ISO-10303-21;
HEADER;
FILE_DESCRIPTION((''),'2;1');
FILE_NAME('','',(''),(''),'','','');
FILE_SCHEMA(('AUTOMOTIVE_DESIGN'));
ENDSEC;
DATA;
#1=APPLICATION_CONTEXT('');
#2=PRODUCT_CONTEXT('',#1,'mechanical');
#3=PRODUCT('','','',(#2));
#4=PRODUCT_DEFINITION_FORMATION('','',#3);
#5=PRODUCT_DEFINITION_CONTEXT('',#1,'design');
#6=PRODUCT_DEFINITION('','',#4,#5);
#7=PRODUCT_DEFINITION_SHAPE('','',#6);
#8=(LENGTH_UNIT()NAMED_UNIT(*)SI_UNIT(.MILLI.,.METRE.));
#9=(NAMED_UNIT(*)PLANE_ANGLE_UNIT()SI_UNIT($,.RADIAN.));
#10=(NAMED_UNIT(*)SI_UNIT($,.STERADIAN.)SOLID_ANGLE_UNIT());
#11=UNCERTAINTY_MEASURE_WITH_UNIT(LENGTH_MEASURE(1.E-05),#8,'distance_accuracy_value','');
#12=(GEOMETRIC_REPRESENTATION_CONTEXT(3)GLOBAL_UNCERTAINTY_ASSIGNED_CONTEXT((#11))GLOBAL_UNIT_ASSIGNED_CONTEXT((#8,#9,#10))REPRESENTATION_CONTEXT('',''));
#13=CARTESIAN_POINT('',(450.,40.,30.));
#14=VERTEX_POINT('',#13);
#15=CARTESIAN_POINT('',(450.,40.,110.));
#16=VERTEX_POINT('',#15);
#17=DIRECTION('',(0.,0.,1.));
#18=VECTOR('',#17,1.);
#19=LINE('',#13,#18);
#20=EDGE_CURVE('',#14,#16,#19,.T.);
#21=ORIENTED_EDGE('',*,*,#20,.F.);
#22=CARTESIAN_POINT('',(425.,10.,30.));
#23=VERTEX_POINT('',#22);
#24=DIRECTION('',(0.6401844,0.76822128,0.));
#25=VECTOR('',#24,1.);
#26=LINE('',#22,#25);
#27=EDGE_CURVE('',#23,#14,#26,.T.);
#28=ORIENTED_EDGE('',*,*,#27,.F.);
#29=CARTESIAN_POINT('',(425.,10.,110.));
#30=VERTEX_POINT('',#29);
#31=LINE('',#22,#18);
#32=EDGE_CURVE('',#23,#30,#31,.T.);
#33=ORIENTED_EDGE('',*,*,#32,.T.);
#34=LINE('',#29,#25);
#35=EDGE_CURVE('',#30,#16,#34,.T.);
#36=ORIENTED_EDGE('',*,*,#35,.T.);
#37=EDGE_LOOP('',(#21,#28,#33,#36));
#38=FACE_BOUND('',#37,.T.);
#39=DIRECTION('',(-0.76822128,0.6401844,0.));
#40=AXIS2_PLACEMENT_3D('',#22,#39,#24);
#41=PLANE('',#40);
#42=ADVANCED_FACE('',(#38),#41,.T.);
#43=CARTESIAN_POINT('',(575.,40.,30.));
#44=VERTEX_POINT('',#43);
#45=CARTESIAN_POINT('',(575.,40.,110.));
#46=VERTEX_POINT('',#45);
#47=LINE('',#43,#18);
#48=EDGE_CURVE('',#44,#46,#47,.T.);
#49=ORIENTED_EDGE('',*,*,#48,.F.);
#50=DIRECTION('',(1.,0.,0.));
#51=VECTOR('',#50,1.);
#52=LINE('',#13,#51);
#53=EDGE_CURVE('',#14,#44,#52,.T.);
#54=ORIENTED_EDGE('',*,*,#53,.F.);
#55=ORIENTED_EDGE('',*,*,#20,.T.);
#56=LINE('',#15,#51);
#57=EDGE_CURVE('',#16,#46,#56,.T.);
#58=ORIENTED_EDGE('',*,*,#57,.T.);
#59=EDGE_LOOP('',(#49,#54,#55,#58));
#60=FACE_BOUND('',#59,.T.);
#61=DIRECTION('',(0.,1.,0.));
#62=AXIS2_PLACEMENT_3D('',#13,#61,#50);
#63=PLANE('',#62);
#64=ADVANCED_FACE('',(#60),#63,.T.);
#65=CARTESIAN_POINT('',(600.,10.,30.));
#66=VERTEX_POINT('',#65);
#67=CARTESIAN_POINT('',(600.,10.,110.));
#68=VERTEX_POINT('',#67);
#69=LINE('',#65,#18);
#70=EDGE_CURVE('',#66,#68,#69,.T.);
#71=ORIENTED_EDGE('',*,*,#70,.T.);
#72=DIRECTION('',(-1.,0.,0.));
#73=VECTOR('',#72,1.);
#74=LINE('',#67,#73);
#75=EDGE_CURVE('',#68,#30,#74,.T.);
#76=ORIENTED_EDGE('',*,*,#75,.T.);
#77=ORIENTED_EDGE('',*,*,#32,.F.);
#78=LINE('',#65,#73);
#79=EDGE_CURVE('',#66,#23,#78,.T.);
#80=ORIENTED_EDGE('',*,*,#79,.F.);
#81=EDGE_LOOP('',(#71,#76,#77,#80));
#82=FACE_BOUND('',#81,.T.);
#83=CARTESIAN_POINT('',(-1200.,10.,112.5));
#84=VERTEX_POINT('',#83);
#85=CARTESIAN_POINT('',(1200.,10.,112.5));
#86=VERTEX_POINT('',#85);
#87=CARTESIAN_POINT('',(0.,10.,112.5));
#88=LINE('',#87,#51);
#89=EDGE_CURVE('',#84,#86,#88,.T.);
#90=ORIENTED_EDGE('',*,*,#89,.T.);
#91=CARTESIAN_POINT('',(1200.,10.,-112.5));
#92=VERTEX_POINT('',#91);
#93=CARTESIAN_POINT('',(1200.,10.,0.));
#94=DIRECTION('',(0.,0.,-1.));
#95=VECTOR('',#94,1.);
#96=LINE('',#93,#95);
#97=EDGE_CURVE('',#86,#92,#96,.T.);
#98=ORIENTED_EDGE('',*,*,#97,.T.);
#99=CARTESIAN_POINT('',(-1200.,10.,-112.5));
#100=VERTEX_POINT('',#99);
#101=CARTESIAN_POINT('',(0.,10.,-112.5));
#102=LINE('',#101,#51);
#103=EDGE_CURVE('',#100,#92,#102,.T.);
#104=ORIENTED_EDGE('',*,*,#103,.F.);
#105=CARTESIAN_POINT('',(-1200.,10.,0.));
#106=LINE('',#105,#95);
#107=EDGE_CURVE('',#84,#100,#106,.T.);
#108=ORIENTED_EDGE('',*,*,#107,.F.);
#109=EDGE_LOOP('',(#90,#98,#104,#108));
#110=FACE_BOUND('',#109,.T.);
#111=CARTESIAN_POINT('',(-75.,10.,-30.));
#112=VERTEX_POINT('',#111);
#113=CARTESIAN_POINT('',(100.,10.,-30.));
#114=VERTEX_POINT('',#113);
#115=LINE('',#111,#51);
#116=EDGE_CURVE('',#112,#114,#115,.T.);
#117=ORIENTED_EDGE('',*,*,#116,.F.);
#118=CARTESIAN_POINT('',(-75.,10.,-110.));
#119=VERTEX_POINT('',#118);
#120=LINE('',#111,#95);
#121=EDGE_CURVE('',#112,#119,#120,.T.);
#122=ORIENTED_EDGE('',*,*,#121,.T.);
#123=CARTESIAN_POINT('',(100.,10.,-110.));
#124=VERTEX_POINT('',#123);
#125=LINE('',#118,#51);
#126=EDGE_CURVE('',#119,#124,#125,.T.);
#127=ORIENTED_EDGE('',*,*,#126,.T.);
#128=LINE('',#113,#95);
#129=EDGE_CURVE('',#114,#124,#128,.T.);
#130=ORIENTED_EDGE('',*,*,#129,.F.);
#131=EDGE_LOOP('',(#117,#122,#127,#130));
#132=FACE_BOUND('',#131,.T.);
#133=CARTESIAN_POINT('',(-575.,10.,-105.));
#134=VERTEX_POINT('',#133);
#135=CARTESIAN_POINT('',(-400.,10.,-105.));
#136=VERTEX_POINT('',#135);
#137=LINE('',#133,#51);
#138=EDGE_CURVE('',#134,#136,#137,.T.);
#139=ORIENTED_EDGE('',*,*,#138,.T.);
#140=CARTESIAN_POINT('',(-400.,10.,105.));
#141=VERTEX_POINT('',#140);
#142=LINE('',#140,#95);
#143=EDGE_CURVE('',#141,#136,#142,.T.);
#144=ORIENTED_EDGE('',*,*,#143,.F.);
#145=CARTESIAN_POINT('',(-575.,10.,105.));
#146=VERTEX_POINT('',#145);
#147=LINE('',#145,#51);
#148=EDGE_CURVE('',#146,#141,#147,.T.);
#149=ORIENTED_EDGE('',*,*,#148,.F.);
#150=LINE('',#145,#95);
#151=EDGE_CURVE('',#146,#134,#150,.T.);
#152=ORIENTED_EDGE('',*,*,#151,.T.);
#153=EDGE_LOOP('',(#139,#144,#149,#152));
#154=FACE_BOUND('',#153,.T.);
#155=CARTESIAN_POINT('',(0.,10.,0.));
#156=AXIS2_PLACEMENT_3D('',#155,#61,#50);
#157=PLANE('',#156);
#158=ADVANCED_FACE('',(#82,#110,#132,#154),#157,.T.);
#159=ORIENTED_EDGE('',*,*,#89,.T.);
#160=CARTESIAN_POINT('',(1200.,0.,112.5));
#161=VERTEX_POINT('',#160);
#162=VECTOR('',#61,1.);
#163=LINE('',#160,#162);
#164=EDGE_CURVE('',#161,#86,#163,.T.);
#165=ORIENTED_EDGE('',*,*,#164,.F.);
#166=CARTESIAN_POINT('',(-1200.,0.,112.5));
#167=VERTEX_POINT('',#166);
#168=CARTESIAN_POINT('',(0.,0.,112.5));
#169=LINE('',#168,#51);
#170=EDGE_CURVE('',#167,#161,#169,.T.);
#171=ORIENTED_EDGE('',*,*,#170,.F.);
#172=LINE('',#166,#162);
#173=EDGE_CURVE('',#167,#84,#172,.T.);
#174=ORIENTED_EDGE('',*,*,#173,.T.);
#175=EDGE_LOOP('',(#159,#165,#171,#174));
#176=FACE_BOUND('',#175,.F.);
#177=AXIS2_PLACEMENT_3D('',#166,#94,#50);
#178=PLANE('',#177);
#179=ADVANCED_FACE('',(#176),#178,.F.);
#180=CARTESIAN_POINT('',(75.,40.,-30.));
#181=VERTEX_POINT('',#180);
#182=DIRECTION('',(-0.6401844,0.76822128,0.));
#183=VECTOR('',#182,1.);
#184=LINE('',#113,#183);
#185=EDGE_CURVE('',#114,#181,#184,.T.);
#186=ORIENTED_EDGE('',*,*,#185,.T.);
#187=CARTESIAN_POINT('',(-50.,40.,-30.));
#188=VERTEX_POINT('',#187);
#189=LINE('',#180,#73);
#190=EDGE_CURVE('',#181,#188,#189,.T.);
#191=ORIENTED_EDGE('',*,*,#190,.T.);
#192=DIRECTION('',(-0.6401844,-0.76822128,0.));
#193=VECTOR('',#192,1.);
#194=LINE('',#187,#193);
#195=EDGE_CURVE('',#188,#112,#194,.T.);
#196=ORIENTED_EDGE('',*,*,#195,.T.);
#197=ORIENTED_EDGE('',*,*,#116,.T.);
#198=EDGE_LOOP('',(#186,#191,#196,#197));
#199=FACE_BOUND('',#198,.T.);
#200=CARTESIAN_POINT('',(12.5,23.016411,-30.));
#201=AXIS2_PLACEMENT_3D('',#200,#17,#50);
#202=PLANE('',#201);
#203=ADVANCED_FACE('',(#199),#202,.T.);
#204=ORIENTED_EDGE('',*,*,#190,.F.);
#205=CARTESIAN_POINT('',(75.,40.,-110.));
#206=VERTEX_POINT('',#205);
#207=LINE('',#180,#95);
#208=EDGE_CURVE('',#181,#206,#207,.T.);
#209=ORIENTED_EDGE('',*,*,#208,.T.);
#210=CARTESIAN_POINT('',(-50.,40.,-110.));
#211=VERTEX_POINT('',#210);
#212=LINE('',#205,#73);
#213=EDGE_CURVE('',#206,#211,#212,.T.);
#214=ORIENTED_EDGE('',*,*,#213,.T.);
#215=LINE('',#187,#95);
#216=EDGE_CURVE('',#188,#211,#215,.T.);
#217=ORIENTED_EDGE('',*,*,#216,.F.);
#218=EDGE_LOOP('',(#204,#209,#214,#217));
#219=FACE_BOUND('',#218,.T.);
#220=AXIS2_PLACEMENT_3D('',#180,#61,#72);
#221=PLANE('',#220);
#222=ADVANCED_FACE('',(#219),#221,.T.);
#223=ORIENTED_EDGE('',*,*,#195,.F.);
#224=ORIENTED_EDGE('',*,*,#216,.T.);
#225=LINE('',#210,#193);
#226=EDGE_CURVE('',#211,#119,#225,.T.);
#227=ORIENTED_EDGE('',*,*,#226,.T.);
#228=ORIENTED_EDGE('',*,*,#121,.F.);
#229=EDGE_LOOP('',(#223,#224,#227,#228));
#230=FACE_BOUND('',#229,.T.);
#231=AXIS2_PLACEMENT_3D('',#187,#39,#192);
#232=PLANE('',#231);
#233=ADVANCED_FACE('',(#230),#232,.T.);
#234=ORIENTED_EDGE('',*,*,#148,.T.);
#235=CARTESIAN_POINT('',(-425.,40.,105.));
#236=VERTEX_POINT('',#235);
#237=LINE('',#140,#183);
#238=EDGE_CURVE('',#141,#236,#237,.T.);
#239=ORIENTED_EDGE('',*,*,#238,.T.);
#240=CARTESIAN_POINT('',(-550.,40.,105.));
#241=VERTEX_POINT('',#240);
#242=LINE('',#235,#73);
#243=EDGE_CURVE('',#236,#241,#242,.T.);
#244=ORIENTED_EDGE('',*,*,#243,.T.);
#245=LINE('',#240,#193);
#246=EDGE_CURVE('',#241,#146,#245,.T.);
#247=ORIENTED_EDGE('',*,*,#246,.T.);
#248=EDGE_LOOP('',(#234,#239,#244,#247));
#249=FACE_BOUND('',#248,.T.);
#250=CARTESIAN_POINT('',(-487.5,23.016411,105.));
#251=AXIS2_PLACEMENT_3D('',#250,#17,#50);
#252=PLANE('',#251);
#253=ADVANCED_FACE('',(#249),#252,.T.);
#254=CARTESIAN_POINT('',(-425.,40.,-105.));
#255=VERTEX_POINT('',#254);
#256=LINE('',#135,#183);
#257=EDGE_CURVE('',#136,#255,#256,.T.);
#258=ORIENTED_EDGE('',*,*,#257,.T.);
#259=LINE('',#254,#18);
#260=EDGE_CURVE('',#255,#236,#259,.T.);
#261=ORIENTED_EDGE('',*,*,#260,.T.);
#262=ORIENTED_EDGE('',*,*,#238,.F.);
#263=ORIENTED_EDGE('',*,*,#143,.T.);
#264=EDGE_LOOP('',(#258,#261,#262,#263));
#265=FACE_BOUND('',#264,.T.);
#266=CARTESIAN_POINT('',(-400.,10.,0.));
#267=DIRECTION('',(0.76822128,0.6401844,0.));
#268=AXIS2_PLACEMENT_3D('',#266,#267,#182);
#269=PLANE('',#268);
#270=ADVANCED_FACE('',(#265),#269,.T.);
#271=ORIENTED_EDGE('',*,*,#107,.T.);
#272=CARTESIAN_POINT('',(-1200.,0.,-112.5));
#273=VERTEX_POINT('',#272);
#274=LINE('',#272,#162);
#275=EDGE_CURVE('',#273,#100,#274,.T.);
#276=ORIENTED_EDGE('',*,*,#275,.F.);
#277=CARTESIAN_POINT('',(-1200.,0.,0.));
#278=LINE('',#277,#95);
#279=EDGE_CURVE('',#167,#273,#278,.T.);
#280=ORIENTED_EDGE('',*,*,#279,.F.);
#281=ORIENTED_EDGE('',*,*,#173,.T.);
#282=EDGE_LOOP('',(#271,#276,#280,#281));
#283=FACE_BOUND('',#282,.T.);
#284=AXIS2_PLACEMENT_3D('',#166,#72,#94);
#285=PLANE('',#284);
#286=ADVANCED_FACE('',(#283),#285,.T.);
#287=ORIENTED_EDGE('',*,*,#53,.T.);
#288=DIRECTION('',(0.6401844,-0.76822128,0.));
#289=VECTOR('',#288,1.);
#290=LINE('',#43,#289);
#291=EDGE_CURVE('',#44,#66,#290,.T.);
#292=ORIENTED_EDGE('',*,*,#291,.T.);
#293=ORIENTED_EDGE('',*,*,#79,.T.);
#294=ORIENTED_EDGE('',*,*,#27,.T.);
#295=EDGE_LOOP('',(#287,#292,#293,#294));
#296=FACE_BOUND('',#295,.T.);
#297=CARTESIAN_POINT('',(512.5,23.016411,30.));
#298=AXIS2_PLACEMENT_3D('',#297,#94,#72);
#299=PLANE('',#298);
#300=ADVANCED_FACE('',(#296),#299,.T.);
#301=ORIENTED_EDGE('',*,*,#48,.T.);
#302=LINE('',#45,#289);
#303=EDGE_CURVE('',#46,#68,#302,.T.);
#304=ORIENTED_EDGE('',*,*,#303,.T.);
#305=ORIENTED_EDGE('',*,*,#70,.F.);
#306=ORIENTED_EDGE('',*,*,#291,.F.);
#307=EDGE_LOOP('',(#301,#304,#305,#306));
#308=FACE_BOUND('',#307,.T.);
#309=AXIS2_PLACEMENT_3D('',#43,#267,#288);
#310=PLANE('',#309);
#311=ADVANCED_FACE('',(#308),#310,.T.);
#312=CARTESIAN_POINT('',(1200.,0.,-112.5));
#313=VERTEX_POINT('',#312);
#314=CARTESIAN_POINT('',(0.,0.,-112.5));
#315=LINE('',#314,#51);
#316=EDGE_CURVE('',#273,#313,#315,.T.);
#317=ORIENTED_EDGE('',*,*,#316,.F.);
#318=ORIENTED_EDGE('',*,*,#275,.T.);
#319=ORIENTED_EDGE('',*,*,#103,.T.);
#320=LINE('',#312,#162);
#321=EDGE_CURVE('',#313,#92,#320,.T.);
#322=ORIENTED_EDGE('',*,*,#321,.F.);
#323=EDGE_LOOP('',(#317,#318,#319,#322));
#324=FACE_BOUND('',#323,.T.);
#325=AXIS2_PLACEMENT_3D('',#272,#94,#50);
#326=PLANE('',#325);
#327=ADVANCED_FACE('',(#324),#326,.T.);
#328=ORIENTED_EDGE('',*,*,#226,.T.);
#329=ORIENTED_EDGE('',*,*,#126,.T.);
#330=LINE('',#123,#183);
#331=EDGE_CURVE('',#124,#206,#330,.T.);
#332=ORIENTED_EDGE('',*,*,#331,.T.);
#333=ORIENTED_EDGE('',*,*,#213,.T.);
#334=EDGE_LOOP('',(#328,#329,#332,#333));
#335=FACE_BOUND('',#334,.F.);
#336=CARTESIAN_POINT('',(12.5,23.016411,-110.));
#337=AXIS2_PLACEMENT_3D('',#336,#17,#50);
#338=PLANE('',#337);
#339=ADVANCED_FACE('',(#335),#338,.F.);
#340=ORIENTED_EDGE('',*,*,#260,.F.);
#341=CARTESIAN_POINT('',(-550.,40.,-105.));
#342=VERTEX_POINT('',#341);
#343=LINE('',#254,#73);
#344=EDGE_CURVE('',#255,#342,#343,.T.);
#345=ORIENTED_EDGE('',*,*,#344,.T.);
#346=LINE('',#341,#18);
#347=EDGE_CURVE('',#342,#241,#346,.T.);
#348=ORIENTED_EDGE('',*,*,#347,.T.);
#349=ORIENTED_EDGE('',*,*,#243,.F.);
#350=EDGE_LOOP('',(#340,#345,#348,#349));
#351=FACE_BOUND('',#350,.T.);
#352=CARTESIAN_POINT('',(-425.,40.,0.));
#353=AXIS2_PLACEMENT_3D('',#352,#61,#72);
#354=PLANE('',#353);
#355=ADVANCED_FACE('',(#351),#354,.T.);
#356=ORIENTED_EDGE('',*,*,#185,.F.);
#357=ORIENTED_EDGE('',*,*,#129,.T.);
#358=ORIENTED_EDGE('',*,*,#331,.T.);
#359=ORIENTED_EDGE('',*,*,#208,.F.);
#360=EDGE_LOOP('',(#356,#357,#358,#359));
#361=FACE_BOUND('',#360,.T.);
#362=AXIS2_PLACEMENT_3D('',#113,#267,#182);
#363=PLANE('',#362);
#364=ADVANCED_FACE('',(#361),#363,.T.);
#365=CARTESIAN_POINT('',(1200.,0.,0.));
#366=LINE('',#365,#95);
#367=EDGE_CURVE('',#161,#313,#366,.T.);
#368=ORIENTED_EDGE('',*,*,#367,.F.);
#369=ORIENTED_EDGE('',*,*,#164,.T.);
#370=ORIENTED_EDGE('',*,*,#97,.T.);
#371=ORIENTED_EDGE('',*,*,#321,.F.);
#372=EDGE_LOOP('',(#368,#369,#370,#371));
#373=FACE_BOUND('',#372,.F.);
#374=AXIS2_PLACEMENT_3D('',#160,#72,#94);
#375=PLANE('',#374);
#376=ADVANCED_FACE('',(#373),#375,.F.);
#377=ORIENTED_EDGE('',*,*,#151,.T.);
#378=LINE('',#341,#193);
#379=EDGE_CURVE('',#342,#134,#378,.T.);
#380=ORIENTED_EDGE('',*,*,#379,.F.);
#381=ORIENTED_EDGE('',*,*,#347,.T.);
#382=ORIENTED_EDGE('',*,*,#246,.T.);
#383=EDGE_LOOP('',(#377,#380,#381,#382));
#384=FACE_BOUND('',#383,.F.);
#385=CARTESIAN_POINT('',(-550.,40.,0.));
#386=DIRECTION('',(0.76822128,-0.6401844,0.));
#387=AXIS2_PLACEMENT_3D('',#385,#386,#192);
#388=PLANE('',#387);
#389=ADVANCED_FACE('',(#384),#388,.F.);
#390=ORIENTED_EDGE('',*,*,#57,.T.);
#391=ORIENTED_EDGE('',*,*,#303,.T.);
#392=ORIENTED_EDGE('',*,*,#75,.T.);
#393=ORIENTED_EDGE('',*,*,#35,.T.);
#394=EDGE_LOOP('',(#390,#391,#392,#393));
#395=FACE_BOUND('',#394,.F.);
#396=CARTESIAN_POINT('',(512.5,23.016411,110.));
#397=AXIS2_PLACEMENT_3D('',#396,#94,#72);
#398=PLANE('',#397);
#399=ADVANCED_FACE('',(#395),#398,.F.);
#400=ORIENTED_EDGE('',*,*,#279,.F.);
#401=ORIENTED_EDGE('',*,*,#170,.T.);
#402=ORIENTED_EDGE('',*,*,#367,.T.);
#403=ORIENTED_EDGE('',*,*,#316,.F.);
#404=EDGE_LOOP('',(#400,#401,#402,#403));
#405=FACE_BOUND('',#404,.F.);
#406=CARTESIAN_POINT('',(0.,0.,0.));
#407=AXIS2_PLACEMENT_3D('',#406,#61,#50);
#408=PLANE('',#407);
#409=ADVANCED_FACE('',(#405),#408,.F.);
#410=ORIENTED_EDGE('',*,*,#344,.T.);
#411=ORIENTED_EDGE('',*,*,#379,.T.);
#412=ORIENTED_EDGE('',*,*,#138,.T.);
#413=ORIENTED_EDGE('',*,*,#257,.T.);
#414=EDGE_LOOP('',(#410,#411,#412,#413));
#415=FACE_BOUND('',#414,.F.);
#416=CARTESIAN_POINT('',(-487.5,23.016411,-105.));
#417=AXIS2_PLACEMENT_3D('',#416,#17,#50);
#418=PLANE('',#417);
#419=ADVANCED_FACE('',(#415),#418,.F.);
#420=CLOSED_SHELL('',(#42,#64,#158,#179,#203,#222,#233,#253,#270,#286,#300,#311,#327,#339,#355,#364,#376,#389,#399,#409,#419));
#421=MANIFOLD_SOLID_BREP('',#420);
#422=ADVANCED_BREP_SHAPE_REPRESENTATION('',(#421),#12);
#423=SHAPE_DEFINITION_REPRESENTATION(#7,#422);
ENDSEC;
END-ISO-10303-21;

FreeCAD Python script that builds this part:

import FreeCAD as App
import Part
import Sketcher
from FreeCAD import Vector
Q = App.Units.Quantity

doc = App.newDocument("Part")
body = doc.addObject("PartDesign::Body", "Body")

sketch1 = body.newObject("Sketcher::SketchObject", "Sketch")
sketch1.AttachmentSupport = (doc.getObject("XZ_Plane"), [""])
sketch1.MapMode = "FlatFace"
sketch1.addGeometry([
    Part.LineSegment(Vector(-1200, -112, 0), Vector(-1200, 112, 0)),
    Part.LineSegment(Vector(-1200, 112, 0), Vector(1200, 112, 0)),
    Part.LineSegment(Vector(1200, 112, 0), Vector(1200, -112, 0)),
    Part.LineSegment(Vector(1200, -112, 0), Vector(-1200, -112, 0)),
], False)
sketch1.addConstraint([
    Sketcher.Constraint("Coincident", 0, 2, 1, 1),
    Sketcher.Constraint("Coincident", 1, 2, 2, 1),
    Sketcher.Constraint("Coincident", 2, 2, 3, 1),
    Sketcher.Constraint("Coincident", 3, 2, 0, 1),
    Sketcher.Constraint("Vertical", 0),
    Sketcher.Constraint("Horizontal", 1),
    Sketcher.Constraint("Vertical", 2),
    Sketcher.Constraint("Horizontal", 3),
    Sketcher.Constraint("Symmetric", 0, 2, 2, 2, -1, 1),
    Sketcher.Constraint("DistanceX", 1, 1, 1, 2, Q("2400 mm")),
    Sketcher.Constraint("DistanceY", 0, 1, 0, 2, Q("225 mm")),
])
pad1 = body.newObject("PartDesign::Pad", "Pad")
pad1.Profile = sketch1
pad1.Length = 10
pad1.Reversed = True

sketch2 = body.newObject("Sketcher::SketchObject", "Sketch001")
sketch2.AttachmentSupport = (doc.getObject("XY_Plane"), [""])
sketch2.MapMode = "FlatFace"
sketch2.AttachmentOffset = App.Placement(Vector(0, 0, 30), App.Rotation())
sketch2.addGeometry([
    Part.LineSegment(Vector(450, 40, 0), Vector(425, 10, 0)),
    Part.LineSegment(Vector(425, 10, 0), Vector(600, 10, 0)),
    Part.LineSegment(Vector(600, 10, 0), Vector(575, 40, 0)),
    Part.LineSegment(Vector(575, 40, 0), Vector(450, 40, 0)),
], False)
sketch2.addConstraint([
    Sketcher.Constraint("Coincident", 0, 2, 1, 1),
    Sketcher.Constraint("Coincident", 1, 2, 2, 1),
    Sketcher.Constraint("Coincident", 2, 2, 3, 1),
    Sketcher.Constraint("Coincident", 3, 2, 0, 1),
    Sketcher.Constraint("Horizontal", 1),
    Sketcher.Constraint("Horizontal", 3),
    Sketcher.Constraint("Equal", 0, 2),
    Sketcher.Constraint("DistanceX", 1, 1, 1, 2, Q("175 mm")),
    Sketcher.Constraint("DistanceX", 3, 2, 3, 1, Q("125 mm")),
    Sketcher.Constraint("DistanceX", -1, 1, 0, 2, Q("425 mm")),
    Sketcher.Constraint("DistanceY", -1, 1, 0, 2, Q("10 mm")),
    Sketcher.Constraint("DistanceY", -1, 1, 2, 2, Q("40 mm")),
])
pad2 = body.newObject("PartDesign::Pad", "Pad001")
pad2.Profile = sketch2
pad2.Length = 80

sketch3 = body.newObject("Sketcher::SketchObject", "Sketch002")
sketch3.AttachmentSupport = (doc.getObject("XY_Plane"), [""])
sketch3.MapMode = "FlatFace"
sketch3.AttachmentOffset = App.Placement(Vector(0, 0, -30), App.Rotation())
sketch3.addGeometry([
    Part.LineSegment(Vector(-75, 10, 0), Vector(100, 10, 0)),
    Part.LineSegment(Vector(100, 10, 0), Vector(75, 40, 0)),
    Part.LineSegment(Vector(75, 40, 0), Vector(-50, 40, 0)),
    Part.LineSegment(Vector(-50, 40, 0), Vector(-75, 10, 0)),
], False)
sketch3.addConstraint([
    Sketcher.Constraint("Coincident", 0, 2, 1, 1),
    Sketcher.Constraint("Coincident", 1, 2, 2, 1),
    Sketcher.Constraint("Coincident", 2, 2, 3, 1),
    Sketcher.Constraint("Coincident", 3, 2, 0, 1),
    Sketcher.Constraint("Horizontal", 0),
    Sketcher.Constraint("Horizontal", 2),
    Sketcher.Constraint("Equal", 1, 3),
    Sketcher.Constraint("DistanceX", 0, 1, 0, 2, Q("175 mm")),
    Sketcher.Constraint("DistanceX", 2, 2, 2, 1, Q("125 mm")),
    Sketcher.Constraint("DistanceX", -1, 1, 0, 2, Q("100 mm")),
    Sketcher.Constraint("DistanceY", -1, 1, 0, 2, Q("10 mm")),
    Sketcher.Constraint("DistanceY", -1, 1, 1, 2, Q("40 mm")),
])
pad3 = body.newObject("PartDesign::Pad", "Pad002")
pad3.Profile = sketch3
pad3.Length = 80
pad3.Reversed = True

sketch4 = body.newObject("Sketcher::SketchObject", "Sketch003")
sketch4.AttachmentSupport = (doc.getObject("XY_Plane"), [""])
sketch4.MapMode = "FlatFace"
sketch4.addGeometry([
    Part.LineSegment(Vector(-400, 10, 0), Vector(-425, 40, 0)),
    Part.LineSegment(Vector(-425, 40, 0), Vector(-550, 40, 0)),
    Part.LineSegment(Vector(-550, 40, 0), Vector(-575, 10, 0)),
    Part.LineSegment(Vector(-575, 10, 0), Vector(-400, 10, 0)),
], False)
sketch4.addConstraint([
    Sketcher.Constraint("Coincident", 0, 2, 1, 1),
    Sketcher.Constraint("Coincident", 1, 2, 2, 1),
    Sketcher.Constraint("Coincident", 2, 2, 3, 1),
    Sketcher.Constraint("Coincident", 3, 2, 0, 1),
    Sketcher.Constraint("Horizontal", 1),
    Sketcher.Constraint("Horizontal", 3),
    Sketcher.Constraint("Equal", 0, 2),
    Sketcher.Constraint("DistanceX", 1, 2, 1, 1, Q("125 mm")),
    Sketcher.Constraint("DistanceX", 3, 1, 3, 2, Q("175 mm")),
    Sketcher.Constraint("DistanceX", 0, 2, -1, 1, Q("425 mm")),
    Sketcher.Constraint("DistanceY", -1, 1, 0, 2, Q("40 mm")),
    Sketcher.Constraint("DistanceY", -1, 1, 2, 2, Q("10 mm")),
])
pad4 = body.newObject("PartDesign::Pad", "Pad003")
pad4.Profile = sketch4
pad4.Type = "TwoLengths"
pad4.Length = 105
pad4.Length2 = 105

doc.recompute()
